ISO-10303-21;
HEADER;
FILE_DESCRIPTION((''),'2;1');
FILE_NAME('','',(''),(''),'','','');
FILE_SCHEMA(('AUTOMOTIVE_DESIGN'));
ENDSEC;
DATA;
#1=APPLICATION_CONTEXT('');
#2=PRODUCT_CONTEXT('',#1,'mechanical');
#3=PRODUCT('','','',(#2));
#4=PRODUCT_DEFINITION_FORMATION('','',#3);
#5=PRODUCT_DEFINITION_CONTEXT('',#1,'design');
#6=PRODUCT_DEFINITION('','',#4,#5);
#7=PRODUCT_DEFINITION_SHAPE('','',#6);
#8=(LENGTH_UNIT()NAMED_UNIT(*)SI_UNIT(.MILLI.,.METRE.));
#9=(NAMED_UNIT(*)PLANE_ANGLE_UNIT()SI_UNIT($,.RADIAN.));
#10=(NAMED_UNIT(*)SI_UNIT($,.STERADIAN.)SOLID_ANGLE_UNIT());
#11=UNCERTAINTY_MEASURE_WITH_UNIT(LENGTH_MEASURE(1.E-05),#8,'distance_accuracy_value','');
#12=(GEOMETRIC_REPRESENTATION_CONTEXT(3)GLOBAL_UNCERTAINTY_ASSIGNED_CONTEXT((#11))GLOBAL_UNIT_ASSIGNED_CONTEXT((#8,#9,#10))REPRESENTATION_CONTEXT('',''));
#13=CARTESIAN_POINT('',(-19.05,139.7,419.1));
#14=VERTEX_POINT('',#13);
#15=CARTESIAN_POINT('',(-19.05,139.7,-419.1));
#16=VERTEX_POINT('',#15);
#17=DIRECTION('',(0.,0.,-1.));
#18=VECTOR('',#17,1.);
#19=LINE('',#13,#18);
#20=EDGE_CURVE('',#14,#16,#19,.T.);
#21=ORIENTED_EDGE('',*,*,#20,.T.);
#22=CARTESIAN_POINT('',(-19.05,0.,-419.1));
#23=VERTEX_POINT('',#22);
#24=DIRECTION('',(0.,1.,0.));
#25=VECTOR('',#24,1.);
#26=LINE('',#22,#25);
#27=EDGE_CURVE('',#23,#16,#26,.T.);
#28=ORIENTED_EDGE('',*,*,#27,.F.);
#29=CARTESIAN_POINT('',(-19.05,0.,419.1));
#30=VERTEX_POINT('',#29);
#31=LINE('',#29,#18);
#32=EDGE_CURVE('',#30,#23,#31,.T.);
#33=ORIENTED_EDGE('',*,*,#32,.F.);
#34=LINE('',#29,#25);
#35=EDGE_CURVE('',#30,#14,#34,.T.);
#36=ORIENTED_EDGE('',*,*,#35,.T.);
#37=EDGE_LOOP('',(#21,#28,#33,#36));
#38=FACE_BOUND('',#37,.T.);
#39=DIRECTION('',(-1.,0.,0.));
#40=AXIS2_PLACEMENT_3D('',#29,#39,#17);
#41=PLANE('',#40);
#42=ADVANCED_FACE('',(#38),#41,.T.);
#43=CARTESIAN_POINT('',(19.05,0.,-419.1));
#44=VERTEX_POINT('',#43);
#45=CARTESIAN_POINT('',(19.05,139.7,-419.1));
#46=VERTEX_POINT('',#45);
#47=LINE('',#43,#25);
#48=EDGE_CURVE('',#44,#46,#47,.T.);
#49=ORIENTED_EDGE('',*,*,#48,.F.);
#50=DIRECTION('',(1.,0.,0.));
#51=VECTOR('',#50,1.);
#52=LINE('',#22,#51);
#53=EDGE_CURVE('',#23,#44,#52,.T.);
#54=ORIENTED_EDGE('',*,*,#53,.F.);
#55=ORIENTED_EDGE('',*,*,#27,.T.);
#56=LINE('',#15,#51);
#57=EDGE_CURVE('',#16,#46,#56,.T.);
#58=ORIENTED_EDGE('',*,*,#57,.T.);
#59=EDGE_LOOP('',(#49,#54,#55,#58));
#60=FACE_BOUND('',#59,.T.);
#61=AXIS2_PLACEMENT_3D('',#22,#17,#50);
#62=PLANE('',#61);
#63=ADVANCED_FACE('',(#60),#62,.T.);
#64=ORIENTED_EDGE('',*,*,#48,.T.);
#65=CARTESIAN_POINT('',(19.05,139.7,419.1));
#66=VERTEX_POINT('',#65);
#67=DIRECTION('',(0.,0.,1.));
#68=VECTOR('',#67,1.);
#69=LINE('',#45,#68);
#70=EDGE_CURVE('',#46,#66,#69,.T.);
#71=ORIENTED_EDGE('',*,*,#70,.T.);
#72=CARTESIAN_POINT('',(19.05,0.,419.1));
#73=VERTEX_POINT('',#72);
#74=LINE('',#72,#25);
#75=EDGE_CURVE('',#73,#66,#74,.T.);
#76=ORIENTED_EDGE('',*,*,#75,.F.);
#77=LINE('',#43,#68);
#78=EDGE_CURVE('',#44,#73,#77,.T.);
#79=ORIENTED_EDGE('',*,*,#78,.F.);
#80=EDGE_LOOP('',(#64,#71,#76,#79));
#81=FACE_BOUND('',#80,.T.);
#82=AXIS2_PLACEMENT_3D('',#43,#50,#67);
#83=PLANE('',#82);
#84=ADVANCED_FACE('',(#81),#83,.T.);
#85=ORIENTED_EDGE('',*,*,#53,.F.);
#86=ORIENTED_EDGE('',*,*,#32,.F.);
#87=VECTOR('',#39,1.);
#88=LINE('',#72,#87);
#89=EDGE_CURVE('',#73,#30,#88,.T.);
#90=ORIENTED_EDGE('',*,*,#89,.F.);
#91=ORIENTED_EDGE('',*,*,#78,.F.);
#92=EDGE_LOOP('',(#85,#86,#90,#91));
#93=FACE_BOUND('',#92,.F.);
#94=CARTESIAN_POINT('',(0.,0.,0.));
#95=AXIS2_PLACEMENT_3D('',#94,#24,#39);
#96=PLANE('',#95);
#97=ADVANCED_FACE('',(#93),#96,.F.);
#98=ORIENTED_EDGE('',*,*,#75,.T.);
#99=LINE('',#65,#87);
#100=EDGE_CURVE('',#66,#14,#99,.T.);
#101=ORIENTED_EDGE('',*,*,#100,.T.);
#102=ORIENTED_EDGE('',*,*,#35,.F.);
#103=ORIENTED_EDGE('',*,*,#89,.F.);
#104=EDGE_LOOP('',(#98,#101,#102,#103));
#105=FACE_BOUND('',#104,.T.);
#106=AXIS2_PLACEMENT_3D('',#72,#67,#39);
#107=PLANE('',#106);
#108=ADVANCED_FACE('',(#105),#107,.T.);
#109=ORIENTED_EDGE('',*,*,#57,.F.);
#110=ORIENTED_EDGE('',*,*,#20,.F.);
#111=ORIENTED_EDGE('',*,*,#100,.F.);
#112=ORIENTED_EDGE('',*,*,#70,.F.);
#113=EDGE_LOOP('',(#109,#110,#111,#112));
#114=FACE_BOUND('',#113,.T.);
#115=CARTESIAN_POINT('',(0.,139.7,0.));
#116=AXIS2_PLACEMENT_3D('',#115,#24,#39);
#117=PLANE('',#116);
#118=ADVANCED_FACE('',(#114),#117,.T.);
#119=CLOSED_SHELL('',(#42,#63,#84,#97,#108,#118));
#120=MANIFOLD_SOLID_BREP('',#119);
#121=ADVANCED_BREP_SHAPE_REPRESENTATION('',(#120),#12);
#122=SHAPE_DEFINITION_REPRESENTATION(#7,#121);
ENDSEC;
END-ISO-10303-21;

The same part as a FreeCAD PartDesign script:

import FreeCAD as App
import Part
import Sketcher
Q = App.Units.Quantity


def add_polygon(sketch, points):
    """Adds a closed chain of lines whose ends are joined by coincident constraints."""
    first, n = sketch.GeometryCount, len(points)
    for a, b in zip(points, points[1:] + points[:1]):
        sketch.addGeometry(Part.LineSegment(App.Vector(*a, 0), App.Vector(*b, 0)), False)
    for i in range(n):
        sketch.addConstraint(Sketcher.Constraint("Coincident", first + i, 2, first + (i + 1) % n, 1))

doc = App.newDocument("Part")
body = doc.addObject("PartDesign::Body", "Body")

sketch1 = body.newObject("Sketcher::SketchObject", "Sketch")
sketch1.AttachmentSupport = (doc.getObject("XZ_Plane"), [""])
sketch1.MapMode = "FlatFace"
add_polygon(sketch1, [(-19.05, 419.1), (19.05, 419.1), (19.05, -419.1), (-19.05, -419.1)])
sketch1.addConstraint(Sketcher.Constraint("Horizontal", 0))
sketch1.addConstraint(Sketcher.Constraint("Vertical", 1))
sketch1.addConstraint(Sketcher.Constraint("Horizontal", 2))
sketch1.addConstraint(Sketcher.Constraint("Vertical", 3))
sketch1.addConstraint(Sketcher.Constraint("Symmetric", 0, 2, 2, 2, -1, 1))
sketch1.addConstraint(Sketcher.Constraint("DistanceY", 1, 2, 1, 1, Q("33 in")))
sketch1.addConstraint(Sketcher.Constraint("DistanceX", 0, 1, 0, 2, Q("1.5 in")))
pad1 = body.newObject("PartDesign::Pad", "Pad")
pad1.Profile = sketch1
pad1.Length = Q("5.5 in")
pad1.Reversed = True

doc.recompute()
